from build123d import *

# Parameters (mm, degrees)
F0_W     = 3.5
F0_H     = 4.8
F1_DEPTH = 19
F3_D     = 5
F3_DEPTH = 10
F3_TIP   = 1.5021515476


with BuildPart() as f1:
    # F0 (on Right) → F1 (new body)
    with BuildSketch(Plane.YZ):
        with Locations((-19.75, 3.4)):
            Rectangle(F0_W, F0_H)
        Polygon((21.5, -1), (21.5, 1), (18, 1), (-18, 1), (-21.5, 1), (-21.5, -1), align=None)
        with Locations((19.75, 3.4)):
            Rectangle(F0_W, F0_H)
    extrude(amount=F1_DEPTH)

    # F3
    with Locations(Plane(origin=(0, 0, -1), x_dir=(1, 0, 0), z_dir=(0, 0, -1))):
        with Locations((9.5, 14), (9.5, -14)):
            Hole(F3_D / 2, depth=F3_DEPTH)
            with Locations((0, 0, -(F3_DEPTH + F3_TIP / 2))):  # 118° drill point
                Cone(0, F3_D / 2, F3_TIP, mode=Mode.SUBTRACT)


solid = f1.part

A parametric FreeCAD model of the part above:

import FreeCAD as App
import Part
import Sketcher


def add_polygon(sketch, points):
    """Adds a closed chain of lines whose ends are joined by coincident constraints."""
    first, n = sketch.GeometryCount, len(points)
    for a, b in zip(points, points[1:] + points[:1]):
        sketch.addGeometry(Part.LineSegment(App.Vector(*a, 0), App.Vector(*b, 0)), False)
    for i in range(n):
        sketch.addConstraint(Sketcher.Constraint("Coincident", first + i, 2, first + (i + 1) % n, 1))

doc = App.newDocument("Part")
body = doc.addObject("PartDesign::Body", "Body")

sketch1 = body.newObject("Sketcher::SketchObject", "Sketch")
sketch1.AttachmentSupport = (doc.getObject("YZ_Plane"), [""])
sketch1.MapMode = "FlatFace"
add_polygon(sketch1, [(-21.5, 5.8), (-21.5, -1), (21.5, -1), (21.5, 5.8), (18, 5.8), (18, 1), (-18, 1), (-18, 5.8)])
sketch1.addConstraint(Sketcher.Constraint("Vertical", 0))
sketch1.addConstraint(Sketcher.Constraint("Horizontal", 1))
sketch1.addConstraint(Sketcher.Constraint("Vertical", 2))
sketch1.addConstraint(Sketcher.Constraint("Horizontal", 3))
sketch1.addConstraint(Sketcher.Constraint("Vertical", 4))
sketch1.addConstraint(Sketcher.Constraint("Horizontal", 5))
sketch1.addConstraint(Sketcher.Constraint("Vertical", 6))
sketch1.addConstraint(Sketcher.Constraint("Horizontal", 7))
sketch1.addConstraint(Sketcher.Constraint("Symmetric", 3, 2, 6, 2, -2))
sketch1.addConstraint(Sketcher.Constraint("Equal", 3, 7))
sketch1.addConstraint(Sketcher.Constraint("DistanceX", 1, 1, 1, 2, 43.0))
sketch1.addConstraint(Sketcher.Constraint("DistanceX", 5, 2, 5, 1, 36.0))
sketch1.addConstraint(Sketcher.Constraint("DistanceY", 0, 2, 0, 1, 6.8))
sketch1.addConstraint(Sketcher.Constraint("DistanceY", 4, 2, 4, 1, 4.8))
sketch1.addConstraint(Sketcher.Constraint("DistanceY", 0, 2, -1, 1, 1.0))
pad1 = body.newObject("PartDesign::Pad", "Pad")
pad1.Profile = sketch1
pad1.Length = 19

sketch2 = body.newObject("Sketcher::SketchObject", "Sketch001")
sketch2.AttachmentSupport = (doc.getObject("XY_Plane"), [""])
sketch2.MapMode = "FlatFace"
sketch2.AttachmentOffset = App.Placement(App.Vector(0, 0, -1), App.Rotation())
sketch2.addGeometry(Part.Circle(App.Vector(9.5, -14, 0), App.Vector(0, 0, 1), 2.5), False)
sketch2.addGeometry(Part.Circle(App.Vector(9.5, 14, 0), App.Vector(0, 0, 1), 2.5), False)
sketch2.addConstraint(Sketcher.Constraint("Equal", 0, 1))
sketch2.addConstraint(Sketcher.Constraint("Symmetric", 0, 3, 1, 3, -1))
sketch2.addConstraint(Sketcher.Constraint("Diameter", 0, 5.0))
sketch2.addConstraint(Sketcher.Constraint("DistanceY", 0, 3, -1, 1, 14.0))
sketch2.addConstraint(Sketcher.Constraint("DistanceX", -1, 1, 0, 3, 9.5))
doc.recompute()
hole = body.newObject("PartDesign::Hole", "Hole")
hole.Profile = sketch2
hole.ThreadType = "None"
hole.Diameter = 5
hole.DepthType = "Dimension"
hole.Depth = 10
hole.DrillPoint = "Angled"
hole.DrillPointAngle = 118
hole.Reversed = True

doc.recompute()
